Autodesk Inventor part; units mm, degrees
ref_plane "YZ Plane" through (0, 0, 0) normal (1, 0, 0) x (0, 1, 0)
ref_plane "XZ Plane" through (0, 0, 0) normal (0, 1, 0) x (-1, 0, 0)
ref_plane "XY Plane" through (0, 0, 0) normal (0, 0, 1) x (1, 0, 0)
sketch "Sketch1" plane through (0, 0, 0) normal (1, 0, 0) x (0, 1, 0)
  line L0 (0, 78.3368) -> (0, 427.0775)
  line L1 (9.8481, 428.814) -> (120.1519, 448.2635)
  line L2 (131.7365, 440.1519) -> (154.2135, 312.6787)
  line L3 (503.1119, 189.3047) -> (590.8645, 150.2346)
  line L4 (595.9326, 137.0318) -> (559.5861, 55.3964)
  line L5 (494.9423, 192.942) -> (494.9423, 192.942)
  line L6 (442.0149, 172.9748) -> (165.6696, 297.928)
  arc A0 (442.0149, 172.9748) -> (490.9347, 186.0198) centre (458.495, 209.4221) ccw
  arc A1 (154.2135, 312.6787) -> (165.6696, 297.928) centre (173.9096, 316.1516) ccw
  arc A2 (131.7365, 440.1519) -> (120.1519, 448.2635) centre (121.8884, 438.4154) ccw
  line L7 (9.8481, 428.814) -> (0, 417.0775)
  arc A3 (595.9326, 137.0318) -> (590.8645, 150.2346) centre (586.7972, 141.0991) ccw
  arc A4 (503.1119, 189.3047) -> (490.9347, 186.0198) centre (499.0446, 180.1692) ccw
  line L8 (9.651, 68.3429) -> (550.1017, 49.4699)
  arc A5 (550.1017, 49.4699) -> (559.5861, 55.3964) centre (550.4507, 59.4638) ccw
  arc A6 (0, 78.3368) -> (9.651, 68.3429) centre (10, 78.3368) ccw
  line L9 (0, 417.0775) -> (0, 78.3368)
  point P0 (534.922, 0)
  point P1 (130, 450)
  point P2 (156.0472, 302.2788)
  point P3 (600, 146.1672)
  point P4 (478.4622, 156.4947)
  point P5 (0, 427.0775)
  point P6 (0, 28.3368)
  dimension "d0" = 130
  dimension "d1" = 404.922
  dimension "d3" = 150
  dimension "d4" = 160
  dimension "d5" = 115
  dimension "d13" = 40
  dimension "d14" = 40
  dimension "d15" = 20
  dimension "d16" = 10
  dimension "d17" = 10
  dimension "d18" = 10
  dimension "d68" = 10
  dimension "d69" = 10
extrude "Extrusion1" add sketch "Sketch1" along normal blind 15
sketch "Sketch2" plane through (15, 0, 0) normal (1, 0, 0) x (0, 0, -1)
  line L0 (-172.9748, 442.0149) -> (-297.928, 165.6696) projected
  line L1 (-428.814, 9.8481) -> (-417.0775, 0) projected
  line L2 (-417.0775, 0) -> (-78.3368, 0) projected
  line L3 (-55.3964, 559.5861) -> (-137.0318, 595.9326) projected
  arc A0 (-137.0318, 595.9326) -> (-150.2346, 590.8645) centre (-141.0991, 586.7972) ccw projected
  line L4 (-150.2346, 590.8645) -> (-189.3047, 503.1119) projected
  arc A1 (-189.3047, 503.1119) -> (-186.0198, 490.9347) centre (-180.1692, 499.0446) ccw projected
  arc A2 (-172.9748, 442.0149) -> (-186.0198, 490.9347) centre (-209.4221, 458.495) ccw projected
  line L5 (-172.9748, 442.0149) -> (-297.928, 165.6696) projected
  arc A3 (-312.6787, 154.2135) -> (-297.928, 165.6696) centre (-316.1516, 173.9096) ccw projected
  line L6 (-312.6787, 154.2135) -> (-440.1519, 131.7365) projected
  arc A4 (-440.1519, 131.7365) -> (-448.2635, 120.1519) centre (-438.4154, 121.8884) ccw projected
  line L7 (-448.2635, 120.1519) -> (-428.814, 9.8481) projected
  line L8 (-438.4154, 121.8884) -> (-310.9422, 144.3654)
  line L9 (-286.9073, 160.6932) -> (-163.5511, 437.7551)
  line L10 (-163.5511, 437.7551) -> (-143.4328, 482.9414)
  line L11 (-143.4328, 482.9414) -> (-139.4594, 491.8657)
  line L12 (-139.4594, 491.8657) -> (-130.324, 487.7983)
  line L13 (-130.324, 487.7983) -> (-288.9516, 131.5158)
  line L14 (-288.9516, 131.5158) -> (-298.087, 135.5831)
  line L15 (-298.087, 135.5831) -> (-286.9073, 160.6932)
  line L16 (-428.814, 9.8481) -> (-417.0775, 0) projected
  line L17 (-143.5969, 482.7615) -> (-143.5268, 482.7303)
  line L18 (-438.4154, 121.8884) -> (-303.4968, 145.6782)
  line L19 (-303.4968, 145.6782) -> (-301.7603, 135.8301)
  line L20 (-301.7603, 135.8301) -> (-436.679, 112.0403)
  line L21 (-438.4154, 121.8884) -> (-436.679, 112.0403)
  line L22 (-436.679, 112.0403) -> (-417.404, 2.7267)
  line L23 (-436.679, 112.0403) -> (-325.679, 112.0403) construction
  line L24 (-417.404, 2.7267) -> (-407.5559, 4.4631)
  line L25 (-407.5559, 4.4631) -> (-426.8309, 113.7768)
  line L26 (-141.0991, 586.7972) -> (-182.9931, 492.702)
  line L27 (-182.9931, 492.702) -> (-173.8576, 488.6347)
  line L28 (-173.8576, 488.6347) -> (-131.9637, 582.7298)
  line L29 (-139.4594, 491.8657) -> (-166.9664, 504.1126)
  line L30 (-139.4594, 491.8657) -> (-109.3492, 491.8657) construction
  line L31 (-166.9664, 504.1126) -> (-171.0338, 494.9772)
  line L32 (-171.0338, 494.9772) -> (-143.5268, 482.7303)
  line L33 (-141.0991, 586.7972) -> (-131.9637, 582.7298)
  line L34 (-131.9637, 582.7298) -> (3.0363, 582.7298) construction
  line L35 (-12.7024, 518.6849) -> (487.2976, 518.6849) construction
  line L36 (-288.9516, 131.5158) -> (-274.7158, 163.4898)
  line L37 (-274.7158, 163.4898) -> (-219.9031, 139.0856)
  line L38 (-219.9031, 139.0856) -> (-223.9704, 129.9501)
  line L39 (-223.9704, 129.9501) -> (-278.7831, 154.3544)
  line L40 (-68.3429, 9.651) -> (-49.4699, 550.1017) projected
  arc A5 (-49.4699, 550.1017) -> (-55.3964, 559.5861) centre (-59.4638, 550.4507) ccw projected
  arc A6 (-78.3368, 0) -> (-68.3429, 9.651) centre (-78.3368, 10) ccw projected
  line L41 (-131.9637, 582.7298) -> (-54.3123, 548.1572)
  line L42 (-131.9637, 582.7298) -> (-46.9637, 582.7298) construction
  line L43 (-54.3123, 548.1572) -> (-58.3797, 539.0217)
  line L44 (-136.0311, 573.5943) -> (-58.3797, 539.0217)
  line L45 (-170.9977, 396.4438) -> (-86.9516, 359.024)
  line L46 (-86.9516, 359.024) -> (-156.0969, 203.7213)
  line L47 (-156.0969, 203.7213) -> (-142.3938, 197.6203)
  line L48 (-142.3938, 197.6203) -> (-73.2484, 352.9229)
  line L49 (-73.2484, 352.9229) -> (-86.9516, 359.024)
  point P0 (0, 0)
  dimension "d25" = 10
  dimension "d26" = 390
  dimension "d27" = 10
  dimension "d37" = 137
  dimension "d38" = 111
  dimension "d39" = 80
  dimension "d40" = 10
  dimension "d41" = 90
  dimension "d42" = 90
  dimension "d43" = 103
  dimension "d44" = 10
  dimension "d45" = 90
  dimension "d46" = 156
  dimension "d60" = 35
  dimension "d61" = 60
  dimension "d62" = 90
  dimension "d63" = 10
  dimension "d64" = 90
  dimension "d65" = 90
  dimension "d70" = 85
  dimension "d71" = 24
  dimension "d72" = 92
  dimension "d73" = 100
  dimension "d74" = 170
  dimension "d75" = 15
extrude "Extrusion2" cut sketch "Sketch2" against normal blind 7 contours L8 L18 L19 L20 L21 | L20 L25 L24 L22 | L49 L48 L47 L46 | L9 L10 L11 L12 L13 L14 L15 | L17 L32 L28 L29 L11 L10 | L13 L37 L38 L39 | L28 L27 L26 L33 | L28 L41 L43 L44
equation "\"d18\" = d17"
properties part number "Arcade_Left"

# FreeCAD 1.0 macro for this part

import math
import FreeCAD as App
import Part
import Sketcher

V = App.Vector
Q = App.Units.Quantity

doc = App.newDocument("Part")
body = doc.addObject("PartDesign::Body", "Body")

# Sketch on YZ plane
sketch1 = body.newObject("Sketcher::SketchObject", "Sketch")
sketch1.AttachmentSupport = (doc.getObject("YZ_Plane"), [""])
sketch1.MapMode = "FlatFace"
sketch1.addGeometry([
    Part.LineSegment(V(0, 417.0775, 0), V(0, 78.3368, 0)),  # 0
    Part.ArcOfCircle(Part.Circle(V(10, 78.3368, 0), V(0, 0, 1), 10), math.radians(180), math.radians(267.99997)),  # 1
    Part.LineSegment(V(9.651, 68.3429, 0), V(550.1017, 49.4699, 0)),  # 2
    Part.ArcOfCircle(Part.Circle(V(550.4507, 59.4638, 0), V(0, 0, 1), 9.999992), math.radians(-92.00003), math.radians(-24.000303)),  # 3
    Part.LineSegment(V(559.5861, 55.3964, 0), V(595.9326, 137.0318, 0)),  # 4
    Part.ArcOfCircle(Part.Circle(V(586.7972, 141.0991, 0), V(0, 0, 1), 9.999923), math.radians(-23.999779), math.radians(66.000454)),  # 5
    Part.LineSegment(V(590.8645, 150.2346, 0), V(503.1119, 189.3047, 0)),  # 6
    Part.ArcOfCircle(Part.Circle(V(499.0446, 180.1692, 0), V(0, 0, 1), 10.000014), math.radians(66.000454), math.radians(144.192771)),  # 7
    Part.ArcOfCircle(Part.Circle(V(458.495, 209.4221, 0), V(0, 0, 1), 39.999992), math.radians(-114.330696), math.radians(-35.807029)),  # 8
    Part.LineSegment(V(442.0149, 172.9748, 0), V(165.6696, 297.928, 0)),  # 9
    Part.ArcOfCircle(Part.Circle(V(173.9096, 316.1516, 0), V(0, 0, 1), 19.999935), math.radians(-170.000152), math.radians(-114.330625)),  # 10
    Part.LineSegment(V(154.2135, 312.6787, 0), V(131.7365, 440.1519, 0)),  # 11
    Part.ArcOfCircle(Part.Circle(V(121.8884, 438.4154, 0), V(0, 0, 1), 10.000025), math.radians(10.00008), math.radians(100.00008)),  # 12
    Part.LineSegment(V(120.1519, 448.2635, 0), V(9.8481, 428.814, 0)),  # 13
    Part.LineSegment(V(9.8481, 428.814, 0), V(0, 417.0775, 0)),  # 14
], False)
sketch1.addConstraint([
    Sketcher.Constraint("Tangent", 0, 2, 1, 1),
    Sketcher.Constraint("Tangent", 1, 2, 2, 1),
    Sketcher.Constraint("Tangent", 2, 2, 3, 1),
    Sketcher.Constraint("Tangent", 3, 2, 4, 1),
    Sketcher.Constraint("Tangent", 4, 2, 5, 1),
    Sketcher.Constraint("Tangent", 5, 2, 6, 1),
    Sketcher.Constraint("Tangent", 6, 2, 7, 1),
    Sketcher.Constraint("Tangent", 7, 2, 8, 2),
    Sketcher.Constraint("Tangent", 8, 1, 9, 1),
    Sketcher.Constraint("Tangent", 9, 2, 10, 2),
    Sketcher.Constraint("Tangent", 10, 1, 11, 1),
    Sketcher.Constraint("Tangent", 11, 2, 12, 1),
    Sketcher.Constraint("Tangent", 12, 2, 13, 1),
    Sketcher.Constraint("Coincident", 13, 2, 14, 1),
    Sketcher.Constraint("Coincident", 14, 2, 0, 1),
    Sketcher.Constraint("Vertical", 0),
    Sketcher.Constraint("Equal", 1, 3),
    Sketcher.Constraint("Equal", 3, 5),
    Sketcher.Constraint("Equal", 5, 7),
    Sketcher.Constraint("Equal", 7, 12),
    Sketcher.Constraint("PointOnObject", 0, 2, -2),
    Sketcher.Constraint("Perpendicular", 4, 6),
    Sketcher.Constraint("Perpendicular", 11, 13),
    Sketcher.Constraint("Radius", 1, Q("10 mm")),
    Sketcher.Constraint("Radius", 8, Q("40 mm")),
    Sketcher.Constraint("Radius", 10, Q("20 mm")),
    Sketcher.Constraint("Angle", 14, Q("-130 deg")),
    Sketcher.Constraint("Angle", 2, Q("-2 deg")),
    Sketcher.Constraint("Angle", 4, Q("66 deg")),
    Sketcher.Constraint("Angle", 11, Q("100 deg")),
    Sketcher.Constraint("Angle", 9, Q("155.6693 deg")),
    Sketcher.Constraint("DistanceY", -1, 1, 2, 2, Q("49.47 mm")),
    Sketcher.Constraint("DistanceY", 5, 3, 7, 3, Q("39.07 mm")),
    Sketcher.Constraint("DistanceX", 7, 2, 7, 3, Q("8.11 mm")),
    Sketcher.Constraint("Distance", 4, Q("89.361 mm")),
    Sketcher.Constraint("Distance", 9, Q("303.282 mm")),
    Sketcher.Constraint("Distance", 14, Q("15.321 mm")),
    Sketcher.Constraint("DistanceY", 0, 2, 0, 1, Q("338.7407 mm")),
    Sketcher.Constraint("DistanceX", -1, 1, 8, 3, Q("458.495 mm")),
])
pad1 = body.newObject("PartDesign::Pad", "Pad")
pad1.Profile = sketch1
pad1.Length = 15

# Sketch on YZ plane
sketch2 = body.newObject("Sketcher::SketchObject", "Sketch001")
sketch2.AttachmentSupport = (doc.getObject("YZ_Plane"), [""])
sketch2.MapMode = "FlatFace"
sketch2.AttachmentOffset = App.Placement(V(0, 0, 15), App.Rotation())
sketch2.addGeometry([
    Part.LineSegment(V(144.3654, 310.9422, 0), V(121.8884, 438.4154, 0)),  # 0
    Part.LineSegment(V(121.8884, 438.4154, 0), V(112.0403, 436.679, 0)),  # 1
    Part.LineSegment(V(112.0403, 436.679, 0), V(2.7267, 417.404, 0)),  # 2
    Part.LineSegment(V(2.7267, 417.404, 0), V(4.4631, 407.5559, 0)),  # 3
    Part.LineSegment(V(4.4631, 407.5559, 0), V(113.7768, 426.8309, 0)),  # 4
    Part.LineSegment(V(113.776786, 426.830897, 0), V(135.8301, 301.7603, 0)),  # 5
    Part.LineSegment(V(135.8301, 301.7603, 0), V(145.6782, 303.4968, 0)),  # 6
    Part.LineSegment(V(145.6782, 303.4968, 0), V(144.365375, 310.942196, 0)),  # 7
    Part.LineSegment(V(352.9229, 73.2484, 0), V(359.024, 86.9516, 0)),  # 8
    Part.LineSegment(V(359.024, 86.9516, 0), V(203.7213, 156.0969, 0)),  # 9
    Part.LineSegment(V(203.7213, 156.0969, 0), V(197.6203, 142.3938, 0)),  # 10
    Part.LineSegment(V(197.6203, 142.3938, 0), V(352.9229, 73.2484, 0)),  # 11
    Part.LineSegment(V(437.7551, 163.5511, 0), V(160.6932, 286.9073, 0)),  # 12
    Part.LineSegment(V(160.6932, 286.9073, 0), V(135.5831, 298.087, 0)),  # 13
    Part.LineSegment(V(135.5831, 298.087, 0), V(131.5158, 288.9516, 0)),  # 14
    Part.LineSegment(V(131.5158, 288.9516, 0), V(154.354427, 278.783162, 0)),  # 15
    Part.LineSegment(V(154.3544, 278.7831, 0), V(129.9501, 223.9704, 0)),  # 16
    Part.LineSegment(V(129.9501, 223.9704, 0), V(139.0856, 219.9031, 0)),  # 17
    Part.LineSegment(V(139.0856, 219.9031, 0), V(163.4898, 274.7158, 0)),  # 18
    Part.LineSegment(V(163.4898, 274.7158, 0), V(487.7983, 130.324, 0)),  # 19
    Part.LineSegment(V(487.7983, 130.324, 0), V(491.8657, 139.4594, 0)),  # 20
    Part.LineSegment(V(491.8657, 139.4594, 0), V(504.1126, 166.9664, 0)),  # 21
    Part.LineSegment(V(504.112594, 166.966387, 0), V(573.594297, 136.031094, 0)),  # 22
    Part.LineSegment(V(573.5943, 136.0311, 0), V(539.0217, 58.3797, 0)),  # 23
    Part.LineSegment(V(539.0217, 58.3797, 0), V(548.1572, 54.3123, 0)),  # 24
    Part.LineSegment(V(548.1572, 54.3123, 0), V(582.7298, 131.9637, 0)),  # 25
    Part.LineSegment(V(582.7298, 131.9637, 0), V(586.7972, 141.0991, 0)),  # 26
    Part.LineSegment(V(586.7972, 141.0991, 0), V(492.702, 182.9931, 0)),  # 27
    Part.LineSegment(V(492.702, 182.9931, 0), V(488.6347, 173.8576, 0)),  # 28
    Part.LineSegment(V(488.6347, 173.8576, 0), V(494.977175, 171.033744, 0)),  # 29
    Part.LineSegment(V(494.9772, 171.0338, 0), V(482.761509, 143.596896, 0)),  # 30
    Part.LineSegment(V(482.7615, 143.5969, 0), V(482.7303, 143.5268, 0)),  # 31
    Part.LineSegment(V(482.730296, 143.52679, 0), V(437.7551, 163.5511, 0)),  # 32
], False)
sketch2.addConstraint([
    Sketcher.Constraint("Coincident", 0, 2, 1, 1),
    Sketcher.Constraint("Coincident", 1, 2, 2, 1),
    Sketcher.Constraint("Coincident", 2, 2, 3, 1),
    Sketcher.Constraint("Coincident", 3, 2, 4, 1),
    Sketcher.Constraint("Coincident", 4, 2, 5, 1),
    Sketcher.Constraint("Coincident", 5, 2, 6, 1),
    Sketcher.Constraint("Coincident", 6, 2, 7, 1),
    Sketcher.Constraint("Coincident", 7, 2, 0, 1),
    Sketcher.Constraint("Coincident", 8, 2, 9, 1),
    Sketcher.Constraint("Coincident", 9, 2, 10, 1),
    Sketcher.Constraint("Coincident", 10, 2, 11, 1),
    Sketcher.Constraint("Coincident", 11, 2, 8, 1),
    Sketcher.Constraint("Coincident", 12, 2, 13, 1),
    Sketcher.Constraint("Coincident", 13, 2, 14, 1),
    Sketcher.Constraint("Coincident", 14, 2, 15, 1),
    Sketcher.Constraint("Coincident", 15, 2, 16, 1),
    Sketcher.Constraint("Coincident", 16, 2, 17, 1),
    Sketcher.Constraint("Coincident", 17, 2, 18, 1),
    Sketcher.Constraint("Coincident", 18, 2, 19, 1),
    Sketcher.Constraint("Coincident", 19, 2, 20, 1),
    Sketcher.Constraint("Coincident", 20, 2, 21, 1),
    Sketcher.Constraint("Coincident", 21, 2, 22, 1),
    Sketcher.Constraint("Coincident", 22, 2, 23, 1),
    Sketcher.Constraint("Coincident", 23, 2, 24, 1),
    Sketcher.Constraint("Coincident", 24, 2, 25, 1),
    Sketcher.Constraint("Coincident", 25, 2, 26, 1),
    Sketcher.Constraint("Coincident", 26, 2, 27, 1),
    Sketcher.Constraint("Coincident", 27, 2, 28, 1),
    Sketcher.Constraint("Coincident", 28, 2, 29, 1),
    Sketcher.Constraint("Coincident", 29, 2, 30, 1),
    Sketcher.Constraint("Coincident", 30, 2, 31, 1),
    Sketcher.Constraint("Coincident", 31, 2, 32, 1),
    Sketcher.Constraint("Coincident", 32, 2, 12, 1),
    Sketcher.Constraint("Perpendicular", 0, 1),
    Sketcher.Constraint("Parallel", 1, 2),
    Sketcher.Constraint("Perpendicular", 2, 3),
    Sketcher.Constraint("Perpendicular", 3, 4),
    Sketcher.Constraint("Perpendicular", 4, 5),
    Sketcher.Constraint("Perpendicular", 5, 6),
    Sketcher.Constraint("Perpendicular", 6, 7),
    Sketcher.Constraint("Perpendicular", 8, 9),
    Sketcher.Constraint("Perpendicular", 9, 10),
    Sketcher.Constraint("Perpendicular", 10, 11),
    Sketcher.Constraint("Parallel", 11, 12),
    Sketcher.Constraint("Parallel", 12, 13),
    Sketcher.Constraint("Perpendicular", 13, 14),
    Sketcher.Constraint("Perpendicular", 14, 15),
    Sketcher.Constraint("Perpendicular", 15, 16),
    Sketcher.Constraint("Perpendicular", 16, 17),
    Sketcher.Constraint("Perpendicular", 17, 18),
    Sketcher.Constraint("Perpendicular", 18, 19),
    Sketcher.Constraint("Perpendicular", 19, 20),
    Sketcher.Constraint("Parallel", 20, 21),
    Sketcher.Constraint("Perpendicular", 21, 22),
    Sketcher.Constraint("Perpendicular", 22, 23),
    Sketcher.Constraint("Perpendicular", 23, 24),
    Sketcher.Constraint("Perpendicular", 24, 25),
    Sketcher.Constraint("Parallel", 25, 26),
    Sketcher.Constraint("Perpendicular", 26, 27),
    Sketcher.Constraint("Perpendicular", 27, 28),
    Sketcher.Constraint("Perpendicular", 28, 29),
    Sketcher.Constraint("Perpendicular", 29, 30),
    Sketcher.Constraint("Parallel", 30, 31),
    Sketcher.Constraint("Perpendicular", 30, 32),
    Sketcher.Constraint("Equal", 1, 3),
    Sketcher.Constraint("Equal", 2, 4),
    Sketcher.Constraint("Equal", 6, 14),
    Sketcher.Constraint("Equal", 14, 17),
    Sketcher.Constraint("Equal", 16, 18),
    Sketcher.Constraint("Equal", 17, 20),
    Sketcher.Constraint("Equal", 20, 24),
    Sketcher.Constraint("Equal", 23, 25),
    Sketcher.Constraint("Equal", 24, 26),
    Sketcher.Constraint("Equal", 26, 28),
    Sketcher.Constraint("Angle", 0, Q("100 deg")),
    Sketcher.Constraint("Angle", 9, Q("156 deg")),
    Sketcher.Constraint("Distance", 1, Q("10 mm")),
    Sketcher.Constraint("Distance", 2, Q("111 mm")),
    Sketcher.Constraint("Distance", 8, Q("15 mm")),
    Sketcher.Constraint("Distance", 9, Q("170 mm")),
    Sketcher.Constraint("Distance", 16, Q("60 mm")),
    Sketcher.Constraint("Distance", 23, Q("85 mm")),
    Sketcher.Constraint("Distance", 27, Q("103 mm")),
    Sketcher.Constraint("Distance", 5, Q("127 mm")),
    Sketcher.Constraint("Distance", 15, Q("25 mm")),
    Sketcher.Constraint("Distance", 19, Q("355 mm")),
    Sketcher.Constraint("DistanceY", 9, 2, 6, 2, Q("147.4 mm")),
    Sketcher.Constraint("DistanceX", -1, 1, 5, 2, Q("135.83 mm")),
    Sketcher.Constraint("DistanceX", -1, 1, 16, 2, Q("129.95 mm")),
    Sketcher.Constraint("DistanceX", 13, 2, 12, 2, Q("25.11 mm")),
    Sketcher.Constraint("DistanceY", 16, 2, 5, 2, Q("77.79 mm")),
    Sketcher.Constraint("DistanceY", 31, 2, 30, 2, Q("0.07 mm")),
    Sketcher.Constraint("DistanceY", -1, 1, 1, 2, Q("436.679 mm")),
    Sketcher.Constraint("DistanceX", -1, 1, 8, 2, Q("359.024 mm")),
    Sketcher.Constraint("DistanceY", -1, 1, 22, 2, Q("136.031 mm")),
    Sketcher.Constraint("DistanceX", -1, 1, 27, 2, Q("492.702 mm")),
    Sketcher.Constraint("DistanceY", -1, 1, 30, 2, Q("143.597 mm")),
    Sketcher.Constraint("DistanceX", -1, 1, 32, 2, Q("437.755 mm")),
    Sketcher.Constraint("DistanceY", 5, 2, 7, 2, Q("9.182 mm")),
])
pocket1 = body.newObject("PartDesign::Pocket", "Pocket")
pocket1.Profile = sketch2
pocket1.Length = 7

doc.recompute()
